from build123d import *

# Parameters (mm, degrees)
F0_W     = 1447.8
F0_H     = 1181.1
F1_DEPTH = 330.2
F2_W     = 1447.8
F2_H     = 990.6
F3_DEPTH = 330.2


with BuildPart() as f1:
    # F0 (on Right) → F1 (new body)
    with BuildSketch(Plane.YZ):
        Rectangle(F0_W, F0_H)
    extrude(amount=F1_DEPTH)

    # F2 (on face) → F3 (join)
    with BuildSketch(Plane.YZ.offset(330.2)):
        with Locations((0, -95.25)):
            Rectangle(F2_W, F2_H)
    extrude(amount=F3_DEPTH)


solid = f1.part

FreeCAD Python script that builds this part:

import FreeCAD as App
import Part
import Sketcher

V = App.Vector
Q = App.Units.Quantity

doc = App.newDocument("Part")
body = doc.addObject("PartDesign::Body", "Body")

# Sketch on YZ plane
sketch1 = body.newObject("Sketcher::SketchObject", "Sketch")
sketch1.AttachmentSupport = (doc.getObject("YZ_Plane"), [""])
sketch1.MapMode = "FlatFace"
sketch1.addGeometry(Part.LineSegment(V(-724, 591, 0), V(-724, -591, 0)), False)
sketch1.addGeometry(Part.LineSegment(V(-724, -591, 0), V(724, -591, 0)), False)
sketch1.addGeometry(Part.LineSegment(V(724, -591, 0), V(724, 591, 0)), False)
sketch1.addGeometry(Part.LineSegment(V(724, 591, 0), V(-724, 591, 0)), False)
sketch1.addConstraint(Sketcher.Constraint("Coincident", 0, 2, 1, 1))
sketch1.addConstraint(Sketcher.Constraint("Coincident", 1, 2, 2, 1))
sketch1.addConstraint(Sketcher.Constraint("Coincident", 2, 2, 3, 1))
sketch1.addConstraint(Sketcher.Constraint("Coincident", 3, 2, 0, 1))
sketch1.addConstraint(Sketcher.Constraint("Vertical", 0))
sketch1.addConstraint(Sketcher.Constraint("Horizontal", 1))
sketch1.addConstraint(Sketcher.Constraint("Vertical", 2))
sketch1.addConstraint(Sketcher.Constraint("Horizontal", 3))
sketch1.addConstraint(Sketcher.Constraint("Symmetric", 0, 2, 2, 2, -1, 1))
sketch1.addConstraint(Sketcher.Constraint("DistanceX", 1, 1, 1, 2, Q("57 in")))
sketch1.addConstraint(Sketcher.Constraint("DistanceY", 0, 2, 0, 1, Q("46.5 in")))
pad1 = body.newObject("PartDesign::Pad", "Pad")
pad1.Profile = sketch1
pad1.Length = Q("13 in")

# Sketch on YZ plane
sketch2 = body.newObject("Sketcher::SketchObject", "Sketch001")
sketch2.AttachmentSupport = (doc.getObject("YZ_Plane"), [""])
sketch2.MapMode = "FlatFace"
sketch2.AttachmentOffset = App.Placement(V(0, 0, 13 * 25.4), App.Rotation())
sketch2.addGeometry(Part.LineSegment(V(-724, 400, 0), V(-724, -591, 0)), False)
sketch2.addGeometry(Part.LineSegment(V(-724, -591, 0), V(724, -591, 0)), False)
sketch2.addGeometry(Part.LineSegment(V(724, -591, 0), V(724, 400, 0)), False)
sketch2.addGeometry(Part.LineSegment(V(724, 400, 0), V(-724, 400, 0)), False)
sketch2.addConstraint(Sketcher.Constraint("Coincident", 0, 2, 1, 1))
sketch2.addConstraint(Sketcher.Constraint("Coincident", 1, 2, 2, 1))
sketch2.addConstraint(Sketcher.Constraint("Coincident", 2, 2, 3, 1))
sketch2.addConstraint(Sketcher.Constraint("Coincident", 3, 2, 0, 1))
sketch2.addConstraint(Sketcher.Constraint("Vertical", 0))
sketch2.addConstraint(Sketcher.Constraint("Horizontal", 1))
sketch2.addConstraint(Sketcher.Constraint("Vertical", 2))
sketch2.addConstraint(Sketcher.Constraint("Horizontal", 3))
sketch2.addConstraint(Sketcher.Constraint("DistanceX", 1, 1, 1, 2, Q("57 in")))
sketch2.addConstraint(Sketcher.Constraint("DistanceY", 0, 2, 0, 1, Q("39 in")))
sketch2.addConstraint(Sketcher.Constraint("DistanceX", 0, 2, -1, 1, Q("28.5 in")))
sketch2.addConstraint(Sketcher.Constraint("DistanceY", 0, 2, -1, 1, Q("23.25 in")))
pad2 = body.newObject("PartDesign::Pad", "Pad001")
pad2.Profile = sketch2
pad2.Length = Q("13 in")

doc.recompute()
